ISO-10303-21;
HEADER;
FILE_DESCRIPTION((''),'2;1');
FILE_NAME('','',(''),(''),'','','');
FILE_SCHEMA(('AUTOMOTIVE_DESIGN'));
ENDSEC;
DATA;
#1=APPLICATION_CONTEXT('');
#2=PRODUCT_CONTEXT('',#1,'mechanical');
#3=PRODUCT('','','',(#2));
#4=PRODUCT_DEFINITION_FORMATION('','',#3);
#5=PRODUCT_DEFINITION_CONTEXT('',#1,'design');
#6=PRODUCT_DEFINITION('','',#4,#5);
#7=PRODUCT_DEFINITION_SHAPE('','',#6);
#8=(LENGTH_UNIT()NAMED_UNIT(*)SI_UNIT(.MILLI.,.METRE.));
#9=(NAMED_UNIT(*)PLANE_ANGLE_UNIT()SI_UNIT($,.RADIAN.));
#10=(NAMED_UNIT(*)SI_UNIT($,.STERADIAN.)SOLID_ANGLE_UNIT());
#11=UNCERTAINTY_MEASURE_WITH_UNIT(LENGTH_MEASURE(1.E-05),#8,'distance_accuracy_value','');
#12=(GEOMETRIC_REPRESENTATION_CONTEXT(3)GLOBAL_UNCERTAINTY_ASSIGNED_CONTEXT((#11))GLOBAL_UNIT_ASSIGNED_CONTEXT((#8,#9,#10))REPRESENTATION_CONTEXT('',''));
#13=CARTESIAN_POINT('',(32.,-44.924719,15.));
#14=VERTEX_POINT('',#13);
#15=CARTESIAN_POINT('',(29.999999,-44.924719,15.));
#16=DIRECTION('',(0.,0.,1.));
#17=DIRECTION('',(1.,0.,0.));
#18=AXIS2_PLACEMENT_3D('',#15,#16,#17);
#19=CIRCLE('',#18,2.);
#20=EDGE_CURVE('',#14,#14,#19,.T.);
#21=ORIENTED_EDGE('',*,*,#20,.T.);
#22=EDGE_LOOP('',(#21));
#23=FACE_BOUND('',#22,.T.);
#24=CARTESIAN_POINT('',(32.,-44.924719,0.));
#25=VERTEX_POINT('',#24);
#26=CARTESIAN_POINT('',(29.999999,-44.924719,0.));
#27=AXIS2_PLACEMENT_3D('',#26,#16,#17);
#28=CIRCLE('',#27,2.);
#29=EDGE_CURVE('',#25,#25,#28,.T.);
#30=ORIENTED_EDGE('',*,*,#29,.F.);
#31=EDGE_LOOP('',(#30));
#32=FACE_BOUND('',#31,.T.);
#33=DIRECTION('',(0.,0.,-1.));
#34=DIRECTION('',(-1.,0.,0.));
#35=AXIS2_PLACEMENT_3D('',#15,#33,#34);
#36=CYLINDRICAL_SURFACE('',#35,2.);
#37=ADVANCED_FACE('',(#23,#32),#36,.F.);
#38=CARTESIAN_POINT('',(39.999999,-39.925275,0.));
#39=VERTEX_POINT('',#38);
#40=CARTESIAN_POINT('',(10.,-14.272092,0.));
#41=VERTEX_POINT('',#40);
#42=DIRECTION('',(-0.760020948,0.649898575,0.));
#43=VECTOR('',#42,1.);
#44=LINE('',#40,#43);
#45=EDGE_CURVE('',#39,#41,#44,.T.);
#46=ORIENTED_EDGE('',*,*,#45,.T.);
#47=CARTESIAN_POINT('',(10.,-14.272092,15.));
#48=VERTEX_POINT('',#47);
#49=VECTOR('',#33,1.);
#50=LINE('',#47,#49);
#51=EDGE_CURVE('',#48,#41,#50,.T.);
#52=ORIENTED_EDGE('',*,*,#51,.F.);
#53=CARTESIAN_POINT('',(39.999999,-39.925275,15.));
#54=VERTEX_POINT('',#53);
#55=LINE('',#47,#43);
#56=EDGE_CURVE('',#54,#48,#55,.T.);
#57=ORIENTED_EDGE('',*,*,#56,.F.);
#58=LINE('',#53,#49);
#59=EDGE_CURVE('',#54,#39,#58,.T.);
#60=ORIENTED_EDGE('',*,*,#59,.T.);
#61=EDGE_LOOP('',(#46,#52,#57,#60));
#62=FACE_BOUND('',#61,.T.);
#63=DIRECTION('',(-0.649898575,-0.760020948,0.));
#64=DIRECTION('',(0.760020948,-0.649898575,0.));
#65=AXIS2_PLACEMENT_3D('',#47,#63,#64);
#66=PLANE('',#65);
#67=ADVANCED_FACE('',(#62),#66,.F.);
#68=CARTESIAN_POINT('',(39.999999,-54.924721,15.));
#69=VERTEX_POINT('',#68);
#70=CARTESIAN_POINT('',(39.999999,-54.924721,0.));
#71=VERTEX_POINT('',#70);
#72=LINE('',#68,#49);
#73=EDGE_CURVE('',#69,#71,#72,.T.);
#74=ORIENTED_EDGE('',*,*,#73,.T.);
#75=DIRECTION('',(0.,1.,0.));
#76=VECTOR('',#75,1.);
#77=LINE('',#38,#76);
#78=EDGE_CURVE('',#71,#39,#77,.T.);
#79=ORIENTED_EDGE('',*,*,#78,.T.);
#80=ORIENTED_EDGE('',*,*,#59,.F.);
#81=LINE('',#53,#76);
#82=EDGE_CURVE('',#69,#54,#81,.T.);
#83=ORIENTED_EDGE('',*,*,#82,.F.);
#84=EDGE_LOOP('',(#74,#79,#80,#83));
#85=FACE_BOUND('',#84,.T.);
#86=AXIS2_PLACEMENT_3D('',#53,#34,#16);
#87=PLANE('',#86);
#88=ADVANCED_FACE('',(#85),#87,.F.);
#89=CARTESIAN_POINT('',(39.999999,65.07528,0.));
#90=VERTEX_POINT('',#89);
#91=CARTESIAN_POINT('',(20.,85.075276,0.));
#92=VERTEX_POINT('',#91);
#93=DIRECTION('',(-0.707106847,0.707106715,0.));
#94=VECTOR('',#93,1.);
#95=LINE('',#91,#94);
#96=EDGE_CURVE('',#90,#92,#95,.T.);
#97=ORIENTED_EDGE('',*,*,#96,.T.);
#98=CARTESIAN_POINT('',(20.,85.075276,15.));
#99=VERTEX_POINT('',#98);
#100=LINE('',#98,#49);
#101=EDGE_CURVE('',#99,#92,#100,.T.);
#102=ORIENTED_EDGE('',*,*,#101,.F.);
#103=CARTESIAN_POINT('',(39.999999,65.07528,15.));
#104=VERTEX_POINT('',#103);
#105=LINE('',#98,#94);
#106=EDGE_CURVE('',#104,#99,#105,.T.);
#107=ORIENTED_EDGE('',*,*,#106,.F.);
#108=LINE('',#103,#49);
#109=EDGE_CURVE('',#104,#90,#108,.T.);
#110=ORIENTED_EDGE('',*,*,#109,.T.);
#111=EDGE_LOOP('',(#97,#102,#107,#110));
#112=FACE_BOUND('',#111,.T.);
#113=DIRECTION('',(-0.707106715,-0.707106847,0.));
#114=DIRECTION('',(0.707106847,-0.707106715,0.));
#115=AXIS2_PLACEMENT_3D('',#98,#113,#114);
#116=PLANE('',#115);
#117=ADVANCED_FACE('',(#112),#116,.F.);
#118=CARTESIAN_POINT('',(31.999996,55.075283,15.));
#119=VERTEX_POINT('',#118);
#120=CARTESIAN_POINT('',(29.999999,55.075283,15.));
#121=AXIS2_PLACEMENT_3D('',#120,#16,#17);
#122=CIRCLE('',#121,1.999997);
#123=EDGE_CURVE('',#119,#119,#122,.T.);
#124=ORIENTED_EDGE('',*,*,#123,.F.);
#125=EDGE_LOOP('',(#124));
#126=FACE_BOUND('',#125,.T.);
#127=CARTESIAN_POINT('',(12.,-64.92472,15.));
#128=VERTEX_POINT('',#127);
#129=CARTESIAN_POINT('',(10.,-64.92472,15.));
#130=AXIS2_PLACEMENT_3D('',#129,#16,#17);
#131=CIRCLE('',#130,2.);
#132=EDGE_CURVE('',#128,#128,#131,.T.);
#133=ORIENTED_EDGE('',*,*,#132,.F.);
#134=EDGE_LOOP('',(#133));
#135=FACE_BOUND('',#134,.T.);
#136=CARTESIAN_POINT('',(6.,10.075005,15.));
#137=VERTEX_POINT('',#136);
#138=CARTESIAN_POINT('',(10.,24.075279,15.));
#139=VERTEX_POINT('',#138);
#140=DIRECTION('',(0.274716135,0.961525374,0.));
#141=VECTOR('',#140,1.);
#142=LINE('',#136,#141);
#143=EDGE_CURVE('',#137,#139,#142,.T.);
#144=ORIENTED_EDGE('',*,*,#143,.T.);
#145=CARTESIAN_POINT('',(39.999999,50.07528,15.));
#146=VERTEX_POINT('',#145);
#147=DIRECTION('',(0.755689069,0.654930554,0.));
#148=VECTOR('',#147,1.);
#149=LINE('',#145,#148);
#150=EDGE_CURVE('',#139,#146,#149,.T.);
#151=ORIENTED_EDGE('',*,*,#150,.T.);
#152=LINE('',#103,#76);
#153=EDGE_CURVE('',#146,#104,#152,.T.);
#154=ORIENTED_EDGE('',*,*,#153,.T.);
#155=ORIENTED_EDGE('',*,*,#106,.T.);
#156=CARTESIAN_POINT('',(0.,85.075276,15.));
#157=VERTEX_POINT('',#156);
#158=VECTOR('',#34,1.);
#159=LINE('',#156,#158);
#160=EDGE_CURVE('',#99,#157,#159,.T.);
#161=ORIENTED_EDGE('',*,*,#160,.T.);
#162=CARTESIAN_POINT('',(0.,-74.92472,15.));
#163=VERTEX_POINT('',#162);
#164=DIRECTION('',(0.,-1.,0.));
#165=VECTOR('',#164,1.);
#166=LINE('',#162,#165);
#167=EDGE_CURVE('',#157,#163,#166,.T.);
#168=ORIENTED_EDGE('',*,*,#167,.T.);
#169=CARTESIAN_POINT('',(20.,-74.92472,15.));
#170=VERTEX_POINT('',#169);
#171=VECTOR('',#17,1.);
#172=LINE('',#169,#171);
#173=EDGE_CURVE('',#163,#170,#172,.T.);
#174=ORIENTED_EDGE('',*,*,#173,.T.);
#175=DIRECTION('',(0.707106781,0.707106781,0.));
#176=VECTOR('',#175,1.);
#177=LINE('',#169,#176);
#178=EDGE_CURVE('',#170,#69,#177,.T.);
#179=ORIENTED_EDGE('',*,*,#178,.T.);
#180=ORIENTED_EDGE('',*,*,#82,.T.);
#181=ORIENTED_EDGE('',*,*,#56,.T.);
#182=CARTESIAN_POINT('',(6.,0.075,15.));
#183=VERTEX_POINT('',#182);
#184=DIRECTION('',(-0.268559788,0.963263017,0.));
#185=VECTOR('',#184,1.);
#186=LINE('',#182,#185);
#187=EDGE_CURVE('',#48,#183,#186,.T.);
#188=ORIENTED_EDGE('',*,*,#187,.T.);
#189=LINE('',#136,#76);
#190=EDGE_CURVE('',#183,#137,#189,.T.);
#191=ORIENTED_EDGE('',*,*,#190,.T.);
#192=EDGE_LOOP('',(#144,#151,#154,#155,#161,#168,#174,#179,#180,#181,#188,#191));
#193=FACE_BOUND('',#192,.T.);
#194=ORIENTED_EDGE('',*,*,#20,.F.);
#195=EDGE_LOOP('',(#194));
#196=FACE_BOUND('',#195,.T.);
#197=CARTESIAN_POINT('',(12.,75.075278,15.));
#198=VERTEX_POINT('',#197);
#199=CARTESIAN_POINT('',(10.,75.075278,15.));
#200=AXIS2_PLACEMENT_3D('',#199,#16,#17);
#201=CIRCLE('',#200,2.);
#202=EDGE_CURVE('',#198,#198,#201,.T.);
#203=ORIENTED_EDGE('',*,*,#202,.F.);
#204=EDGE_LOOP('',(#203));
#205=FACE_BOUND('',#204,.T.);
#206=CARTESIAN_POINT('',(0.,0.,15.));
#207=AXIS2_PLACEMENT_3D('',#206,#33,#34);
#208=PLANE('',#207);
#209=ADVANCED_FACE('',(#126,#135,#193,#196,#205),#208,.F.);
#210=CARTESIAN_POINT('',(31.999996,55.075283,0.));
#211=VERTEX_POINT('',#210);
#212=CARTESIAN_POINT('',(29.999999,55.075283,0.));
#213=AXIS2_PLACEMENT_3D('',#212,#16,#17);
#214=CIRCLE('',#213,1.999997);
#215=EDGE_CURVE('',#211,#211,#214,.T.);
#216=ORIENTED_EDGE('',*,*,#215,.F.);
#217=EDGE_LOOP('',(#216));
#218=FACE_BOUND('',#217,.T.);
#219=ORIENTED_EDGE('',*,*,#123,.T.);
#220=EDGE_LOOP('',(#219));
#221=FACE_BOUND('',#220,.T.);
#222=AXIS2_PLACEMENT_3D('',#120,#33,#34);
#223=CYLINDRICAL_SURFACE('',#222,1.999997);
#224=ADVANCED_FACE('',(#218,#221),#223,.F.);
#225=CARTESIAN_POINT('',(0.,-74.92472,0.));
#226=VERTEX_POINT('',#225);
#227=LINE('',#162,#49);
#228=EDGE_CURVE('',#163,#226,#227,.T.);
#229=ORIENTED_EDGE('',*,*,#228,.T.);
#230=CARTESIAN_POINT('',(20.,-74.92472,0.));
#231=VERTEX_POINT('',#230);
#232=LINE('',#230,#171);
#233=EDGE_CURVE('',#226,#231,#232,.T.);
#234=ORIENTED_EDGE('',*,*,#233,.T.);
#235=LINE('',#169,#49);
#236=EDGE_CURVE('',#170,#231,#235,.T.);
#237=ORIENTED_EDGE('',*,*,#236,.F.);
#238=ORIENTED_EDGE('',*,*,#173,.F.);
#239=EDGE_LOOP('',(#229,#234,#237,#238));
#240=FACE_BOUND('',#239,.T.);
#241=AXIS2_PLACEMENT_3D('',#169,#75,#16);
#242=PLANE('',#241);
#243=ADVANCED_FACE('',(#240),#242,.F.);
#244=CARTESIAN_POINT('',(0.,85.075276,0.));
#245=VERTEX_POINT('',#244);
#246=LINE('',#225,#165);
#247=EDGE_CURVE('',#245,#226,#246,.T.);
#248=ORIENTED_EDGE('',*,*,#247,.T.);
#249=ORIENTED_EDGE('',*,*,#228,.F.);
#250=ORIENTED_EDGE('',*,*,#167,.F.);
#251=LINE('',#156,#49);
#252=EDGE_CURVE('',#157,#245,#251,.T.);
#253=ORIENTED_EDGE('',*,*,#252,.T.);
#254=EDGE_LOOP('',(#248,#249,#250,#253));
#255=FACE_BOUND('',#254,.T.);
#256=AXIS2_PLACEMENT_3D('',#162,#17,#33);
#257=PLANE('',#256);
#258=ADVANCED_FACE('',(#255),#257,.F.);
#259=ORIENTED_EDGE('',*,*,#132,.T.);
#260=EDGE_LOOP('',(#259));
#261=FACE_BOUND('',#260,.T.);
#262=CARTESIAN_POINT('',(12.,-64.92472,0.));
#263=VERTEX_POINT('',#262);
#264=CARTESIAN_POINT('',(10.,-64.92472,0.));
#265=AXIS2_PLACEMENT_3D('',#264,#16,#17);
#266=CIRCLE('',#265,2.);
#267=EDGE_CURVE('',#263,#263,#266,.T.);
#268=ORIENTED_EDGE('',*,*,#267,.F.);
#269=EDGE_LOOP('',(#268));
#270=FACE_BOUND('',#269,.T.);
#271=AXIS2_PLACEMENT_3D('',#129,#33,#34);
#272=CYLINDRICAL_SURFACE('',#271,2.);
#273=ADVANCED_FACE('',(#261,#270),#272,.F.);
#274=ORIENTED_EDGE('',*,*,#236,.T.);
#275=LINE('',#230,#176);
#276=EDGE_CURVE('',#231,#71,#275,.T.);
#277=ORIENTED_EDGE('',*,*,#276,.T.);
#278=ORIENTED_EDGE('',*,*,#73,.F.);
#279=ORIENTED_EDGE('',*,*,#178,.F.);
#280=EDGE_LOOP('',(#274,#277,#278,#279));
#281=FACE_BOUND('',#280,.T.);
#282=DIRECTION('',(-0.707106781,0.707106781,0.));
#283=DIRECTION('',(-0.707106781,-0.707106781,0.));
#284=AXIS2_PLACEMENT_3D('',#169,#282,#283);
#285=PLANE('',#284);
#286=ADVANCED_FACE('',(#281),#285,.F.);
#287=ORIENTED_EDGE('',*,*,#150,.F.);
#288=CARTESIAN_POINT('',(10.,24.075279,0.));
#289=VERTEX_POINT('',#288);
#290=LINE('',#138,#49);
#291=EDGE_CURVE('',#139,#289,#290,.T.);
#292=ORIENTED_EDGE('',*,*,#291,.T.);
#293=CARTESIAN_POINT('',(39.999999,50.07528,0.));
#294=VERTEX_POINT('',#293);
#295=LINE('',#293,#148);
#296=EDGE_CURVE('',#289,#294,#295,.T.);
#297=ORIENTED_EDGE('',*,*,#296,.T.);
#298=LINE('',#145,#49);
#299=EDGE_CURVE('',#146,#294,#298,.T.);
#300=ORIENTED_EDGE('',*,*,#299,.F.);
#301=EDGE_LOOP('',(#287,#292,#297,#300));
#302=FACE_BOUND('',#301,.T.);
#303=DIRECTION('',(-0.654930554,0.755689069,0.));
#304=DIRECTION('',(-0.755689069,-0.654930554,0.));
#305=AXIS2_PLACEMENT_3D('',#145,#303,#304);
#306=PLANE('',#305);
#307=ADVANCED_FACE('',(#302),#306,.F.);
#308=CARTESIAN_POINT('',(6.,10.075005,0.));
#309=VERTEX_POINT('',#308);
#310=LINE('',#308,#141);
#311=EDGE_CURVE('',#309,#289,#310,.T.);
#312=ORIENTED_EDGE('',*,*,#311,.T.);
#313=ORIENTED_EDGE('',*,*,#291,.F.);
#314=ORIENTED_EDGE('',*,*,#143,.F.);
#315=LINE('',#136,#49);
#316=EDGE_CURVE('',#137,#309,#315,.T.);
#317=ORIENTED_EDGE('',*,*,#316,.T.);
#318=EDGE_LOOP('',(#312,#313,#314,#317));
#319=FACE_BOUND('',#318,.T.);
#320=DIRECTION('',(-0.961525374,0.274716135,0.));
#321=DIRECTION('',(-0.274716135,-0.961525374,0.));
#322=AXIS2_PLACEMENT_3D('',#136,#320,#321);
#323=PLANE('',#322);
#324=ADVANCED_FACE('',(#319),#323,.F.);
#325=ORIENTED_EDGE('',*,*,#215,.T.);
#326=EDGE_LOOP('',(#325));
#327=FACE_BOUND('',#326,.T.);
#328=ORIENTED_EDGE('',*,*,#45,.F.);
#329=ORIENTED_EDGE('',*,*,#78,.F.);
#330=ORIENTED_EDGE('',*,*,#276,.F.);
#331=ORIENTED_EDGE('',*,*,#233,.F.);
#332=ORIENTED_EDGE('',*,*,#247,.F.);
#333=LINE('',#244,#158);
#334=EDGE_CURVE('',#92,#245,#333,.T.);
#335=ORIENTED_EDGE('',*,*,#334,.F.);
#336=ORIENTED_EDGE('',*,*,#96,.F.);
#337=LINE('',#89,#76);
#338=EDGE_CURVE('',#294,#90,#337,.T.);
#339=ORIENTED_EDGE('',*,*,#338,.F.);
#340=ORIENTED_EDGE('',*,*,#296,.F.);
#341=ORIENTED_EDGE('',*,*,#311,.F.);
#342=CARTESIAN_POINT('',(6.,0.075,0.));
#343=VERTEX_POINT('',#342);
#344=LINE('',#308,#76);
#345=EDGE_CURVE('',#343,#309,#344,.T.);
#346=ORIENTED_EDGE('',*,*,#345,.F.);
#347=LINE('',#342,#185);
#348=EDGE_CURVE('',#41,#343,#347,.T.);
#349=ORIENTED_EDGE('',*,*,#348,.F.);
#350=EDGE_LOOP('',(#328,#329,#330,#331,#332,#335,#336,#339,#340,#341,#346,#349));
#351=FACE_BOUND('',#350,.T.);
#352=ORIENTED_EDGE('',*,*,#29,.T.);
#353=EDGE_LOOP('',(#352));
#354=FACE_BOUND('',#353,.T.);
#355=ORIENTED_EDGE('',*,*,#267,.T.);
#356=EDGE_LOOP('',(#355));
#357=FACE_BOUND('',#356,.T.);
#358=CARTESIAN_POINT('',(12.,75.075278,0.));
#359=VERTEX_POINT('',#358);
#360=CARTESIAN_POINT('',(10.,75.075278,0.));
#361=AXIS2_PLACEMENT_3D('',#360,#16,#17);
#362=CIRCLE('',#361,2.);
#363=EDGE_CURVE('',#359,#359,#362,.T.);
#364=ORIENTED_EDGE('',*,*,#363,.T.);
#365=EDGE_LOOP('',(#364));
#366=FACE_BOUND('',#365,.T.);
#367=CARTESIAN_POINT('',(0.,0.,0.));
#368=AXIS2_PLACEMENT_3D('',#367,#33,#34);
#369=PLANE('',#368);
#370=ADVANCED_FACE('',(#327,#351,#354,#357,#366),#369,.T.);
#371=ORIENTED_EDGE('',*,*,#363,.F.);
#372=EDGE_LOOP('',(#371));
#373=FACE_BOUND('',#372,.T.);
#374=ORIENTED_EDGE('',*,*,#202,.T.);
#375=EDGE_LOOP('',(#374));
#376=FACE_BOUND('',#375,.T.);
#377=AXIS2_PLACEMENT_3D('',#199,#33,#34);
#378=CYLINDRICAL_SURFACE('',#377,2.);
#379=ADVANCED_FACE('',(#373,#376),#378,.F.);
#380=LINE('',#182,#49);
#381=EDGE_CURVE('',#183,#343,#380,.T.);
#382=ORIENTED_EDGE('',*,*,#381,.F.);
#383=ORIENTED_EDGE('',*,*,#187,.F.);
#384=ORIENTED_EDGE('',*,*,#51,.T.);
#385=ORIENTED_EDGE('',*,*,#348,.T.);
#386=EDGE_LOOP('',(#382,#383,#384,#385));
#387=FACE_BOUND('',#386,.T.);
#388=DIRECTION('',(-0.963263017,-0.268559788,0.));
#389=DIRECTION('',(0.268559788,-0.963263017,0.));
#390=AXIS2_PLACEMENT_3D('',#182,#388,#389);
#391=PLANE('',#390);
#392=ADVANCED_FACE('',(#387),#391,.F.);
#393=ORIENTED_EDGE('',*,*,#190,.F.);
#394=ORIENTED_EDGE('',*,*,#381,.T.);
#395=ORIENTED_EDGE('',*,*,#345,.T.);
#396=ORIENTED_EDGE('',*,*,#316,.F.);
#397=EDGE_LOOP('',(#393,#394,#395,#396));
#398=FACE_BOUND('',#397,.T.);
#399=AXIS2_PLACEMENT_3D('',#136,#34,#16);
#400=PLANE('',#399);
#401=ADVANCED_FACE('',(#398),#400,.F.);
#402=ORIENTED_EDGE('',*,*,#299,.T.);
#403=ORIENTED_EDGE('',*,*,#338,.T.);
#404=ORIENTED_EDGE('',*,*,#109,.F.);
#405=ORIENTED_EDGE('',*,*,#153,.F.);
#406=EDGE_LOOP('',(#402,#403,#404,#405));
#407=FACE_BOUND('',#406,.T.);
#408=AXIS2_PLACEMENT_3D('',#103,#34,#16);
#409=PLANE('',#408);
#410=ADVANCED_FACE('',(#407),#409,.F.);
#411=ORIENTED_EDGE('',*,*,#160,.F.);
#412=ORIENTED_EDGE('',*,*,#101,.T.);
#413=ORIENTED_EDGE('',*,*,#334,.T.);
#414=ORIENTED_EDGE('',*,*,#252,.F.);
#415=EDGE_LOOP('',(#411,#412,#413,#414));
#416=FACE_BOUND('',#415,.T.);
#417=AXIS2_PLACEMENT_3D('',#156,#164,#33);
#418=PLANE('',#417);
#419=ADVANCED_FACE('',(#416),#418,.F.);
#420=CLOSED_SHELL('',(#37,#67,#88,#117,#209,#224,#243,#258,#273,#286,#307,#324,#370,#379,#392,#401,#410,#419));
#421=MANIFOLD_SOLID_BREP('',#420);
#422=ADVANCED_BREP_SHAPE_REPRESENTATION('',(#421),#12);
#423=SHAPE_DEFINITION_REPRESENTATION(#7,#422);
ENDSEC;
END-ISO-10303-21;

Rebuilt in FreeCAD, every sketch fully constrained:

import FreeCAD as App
import Part
import Sketcher
Q = App.Units.Quantity


def add_polygon(sketch, points):
    """Adds a closed chain of lines whose ends are joined by coincident constraints."""
    first, n = sketch.GeometryCount, len(points)
    for a, b in zip(points, points[1:] + points[:1]):
        sketch.addGeometry(Part.LineSegment(App.Vector(*a, 0), App.Vector(*b, 0)), False)
    for i in range(n):
        sketch.addConstraint(Sketcher.Constraint("Coincident", first + i, 2, first + (i + 1) % n, 1))

doc = App.newDocument("Part")
params = doc.addObject("Spreadsheet::Sheet", "Params")
for row, (alias, value) in enumerate([
    ("sketch1_diameter", "4.000001 mm"),
    ("sketch1_width", "20 mm"),
    ("sketch1_height", "15.000001 mm"),
    ("pad1_length", "15 mm"),
], start=1):
    params.set(f"A{row}", alias)
    params.set(f"B{row}", "=" + value)
    params.setAlias(f"B{row}", alias)

body = doc.addObject("PartDesign::Body", "Body")

# Sketch on XY plane
sketch1 = body.newObject("Sketcher::SketchObject", "Sketch")
sketch1.AttachmentSupport = (doc.getObject("XY_Plane"), [""])
sketch1.MapMode = "FlatFace"
add_polygon(sketch1, [(20, 85.1), (0, 85.1), (0, -74.9), (20, -74.9), (40, -54.9), (40, -39.9), (10, -14.3), (6, 0.1), (6, 10.1), (10, 24.1), (40, 50.1), (40, 65.1)])  # lines 0-11
sketch1.addGeometry(Part.Circle(App.Vector(30, -44.9, 0), App.Vector(0, 0, 1), 2), False)  # 12
sketch1.addGeometry(Part.Circle(App.Vector(10, -64.9, 0), App.Vector(0, 0, 1), 2), False)  # 13
sketch1.addGeometry(Part.Circle(App.Vector(30, 55.1, 0), App.Vector(0, 0, 1), 2), False)  # 14
sketch1.addGeometry(Part.Circle(App.Vector(10, 75.1, 0), App.Vector(0, 0, 1), 2), False)  # 15
sketch1.addConstraint(Sketcher.Constraint("Horizontal", 0))
sketch1.addConstraint(Sketcher.Constraint("Vertical", 1))
sketch1.addConstraint(Sketcher.Constraint("Horizontal", 2))
sketch1.addConstraint(Sketcher.Constraint("Vertical", 4))
sketch1.addConstraint(Sketcher.Constraint("Vertical", 7))
sketch1.addConstraint(Sketcher.Constraint("Vertical", 10))
sketch1.addConstraint(Sketcher.Constraint("Equal", 12, 13))
sketch1.addConstraint(Sketcher.Constraint("Equal", 13, 15))
sketch1.addConstraint(Sketcher.Constraint("PointOnObject", 0, 2, -2))
sketch1.addConstraint(Sketcher.Constraint("Perpendicular", 3, 11))
sketch1.addConstraint(Sketcher.Constraint("Vertical", 12, 3, 14, 3))
sketch1.addConstraint(Sketcher.Constraint("Vertical", 13, 3, 15, 3))
sketch1.addConstraint(Sketcher.Constraint("Vertical", 15, 3, 5, 2))
sketch1.addConstraint(Sketcher.Constraint("Vertical", 5, 2, 8, 2))
sketch1.addConstraint(Sketcher.Constraint("Vertical", 4, 2, 9, 2))
sketch1.addConstraint(Sketcher.Constraint("Vertical", 2, 2, 11, 2))
sketch1.addConstraint(Sketcher.Constraint("Diameter", 12, 4.000001))
sketch1.addConstraint(Sketcher.Constraint("DistanceX", 0, 2, 0, 1, 20.0))
sketch1.addConstraint(Sketcher.Constraint("DistanceY", 10, 1, 10, 2, 15.000001))
sketch1.addConstraint(Sketcher.Constraint("Angle", 3, Q("45 deg")))
sketch1.addConstraint(Sketcher.Constraint("DistanceX", -1, 1, 12, 3, 29.999999))
sketch1.addConstraint(Sketcher.Constraint("DistanceX", -1, 1, 13, 3, 10.0))
sketch1.addConstraint(Sketcher.Constraint("DistanceX", -1, 1, 3, 2, 39.999999))
sketch1.addConstraint(Sketcher.Constraint("DistanceX", -1, 1, 6, 2, 6.0))
sketch1.addConstraint(Sketcher.Constraint("DistanceY", 13, 3, 12, 3, 20.000001))
sketch1.addConstraint(Sketcher.Constraint("DistanceY", 12, 3, 14, 3, 100.000001))
sketch1.addConstraint(Sketcher.Constraint("DistanceY", 13, 3, 15, 3, 139.999998))
sketch1.addConstraint(Sketcher.Constraint("DistanceY", 1, 2, 13, 3, 10.0))
sketch1.addConstraint(Sketcher.Constraint("DistanceY", 8, 2, 15, 3, 50.999999))
sketch1.addConstraint(Sketcher.Constraint("DistanceY", 9, 2, 15, 3, 24.999999))
sketch1.addConstraint(Sketcher.Constraint("Diameter", 14, 3.999993))
sketch1.addConstraint(Sketcher.Constraint("DistanceY", -1, 1, 6, 2, 0.075))
sketch1.addConstraint(Sketcher.Constraint("Distance", 6, 14.894262))
sketch1.addConstraint(Sketcher.Constraint("DistanceY", 4, 1, 4, 2, 14.999446))
sketch1.addConstraint(Sketcher.Constraint("DistanceY", 7, 1, 7, 2, 10.000005))
sketch1.addConstraint(Sketcher.Constraint("DistanceY", 12, 3, -1, 1, 44.924719))
sketch1.setExpression("Constraints[28]", "Params.sketch1_diameter")
sketch1.setExpression("Constraints[29]", "Params.sketch1_width")
sketch1.setExpression("Constraints[30]", "Params.sketch1_height")
pad1 = body.newObject("PartDesign::Pad", "Pad")
pad1.Profile = sketch1
pad1.setExpression("Length", "Params.pad1_length")

doc.recompute()
